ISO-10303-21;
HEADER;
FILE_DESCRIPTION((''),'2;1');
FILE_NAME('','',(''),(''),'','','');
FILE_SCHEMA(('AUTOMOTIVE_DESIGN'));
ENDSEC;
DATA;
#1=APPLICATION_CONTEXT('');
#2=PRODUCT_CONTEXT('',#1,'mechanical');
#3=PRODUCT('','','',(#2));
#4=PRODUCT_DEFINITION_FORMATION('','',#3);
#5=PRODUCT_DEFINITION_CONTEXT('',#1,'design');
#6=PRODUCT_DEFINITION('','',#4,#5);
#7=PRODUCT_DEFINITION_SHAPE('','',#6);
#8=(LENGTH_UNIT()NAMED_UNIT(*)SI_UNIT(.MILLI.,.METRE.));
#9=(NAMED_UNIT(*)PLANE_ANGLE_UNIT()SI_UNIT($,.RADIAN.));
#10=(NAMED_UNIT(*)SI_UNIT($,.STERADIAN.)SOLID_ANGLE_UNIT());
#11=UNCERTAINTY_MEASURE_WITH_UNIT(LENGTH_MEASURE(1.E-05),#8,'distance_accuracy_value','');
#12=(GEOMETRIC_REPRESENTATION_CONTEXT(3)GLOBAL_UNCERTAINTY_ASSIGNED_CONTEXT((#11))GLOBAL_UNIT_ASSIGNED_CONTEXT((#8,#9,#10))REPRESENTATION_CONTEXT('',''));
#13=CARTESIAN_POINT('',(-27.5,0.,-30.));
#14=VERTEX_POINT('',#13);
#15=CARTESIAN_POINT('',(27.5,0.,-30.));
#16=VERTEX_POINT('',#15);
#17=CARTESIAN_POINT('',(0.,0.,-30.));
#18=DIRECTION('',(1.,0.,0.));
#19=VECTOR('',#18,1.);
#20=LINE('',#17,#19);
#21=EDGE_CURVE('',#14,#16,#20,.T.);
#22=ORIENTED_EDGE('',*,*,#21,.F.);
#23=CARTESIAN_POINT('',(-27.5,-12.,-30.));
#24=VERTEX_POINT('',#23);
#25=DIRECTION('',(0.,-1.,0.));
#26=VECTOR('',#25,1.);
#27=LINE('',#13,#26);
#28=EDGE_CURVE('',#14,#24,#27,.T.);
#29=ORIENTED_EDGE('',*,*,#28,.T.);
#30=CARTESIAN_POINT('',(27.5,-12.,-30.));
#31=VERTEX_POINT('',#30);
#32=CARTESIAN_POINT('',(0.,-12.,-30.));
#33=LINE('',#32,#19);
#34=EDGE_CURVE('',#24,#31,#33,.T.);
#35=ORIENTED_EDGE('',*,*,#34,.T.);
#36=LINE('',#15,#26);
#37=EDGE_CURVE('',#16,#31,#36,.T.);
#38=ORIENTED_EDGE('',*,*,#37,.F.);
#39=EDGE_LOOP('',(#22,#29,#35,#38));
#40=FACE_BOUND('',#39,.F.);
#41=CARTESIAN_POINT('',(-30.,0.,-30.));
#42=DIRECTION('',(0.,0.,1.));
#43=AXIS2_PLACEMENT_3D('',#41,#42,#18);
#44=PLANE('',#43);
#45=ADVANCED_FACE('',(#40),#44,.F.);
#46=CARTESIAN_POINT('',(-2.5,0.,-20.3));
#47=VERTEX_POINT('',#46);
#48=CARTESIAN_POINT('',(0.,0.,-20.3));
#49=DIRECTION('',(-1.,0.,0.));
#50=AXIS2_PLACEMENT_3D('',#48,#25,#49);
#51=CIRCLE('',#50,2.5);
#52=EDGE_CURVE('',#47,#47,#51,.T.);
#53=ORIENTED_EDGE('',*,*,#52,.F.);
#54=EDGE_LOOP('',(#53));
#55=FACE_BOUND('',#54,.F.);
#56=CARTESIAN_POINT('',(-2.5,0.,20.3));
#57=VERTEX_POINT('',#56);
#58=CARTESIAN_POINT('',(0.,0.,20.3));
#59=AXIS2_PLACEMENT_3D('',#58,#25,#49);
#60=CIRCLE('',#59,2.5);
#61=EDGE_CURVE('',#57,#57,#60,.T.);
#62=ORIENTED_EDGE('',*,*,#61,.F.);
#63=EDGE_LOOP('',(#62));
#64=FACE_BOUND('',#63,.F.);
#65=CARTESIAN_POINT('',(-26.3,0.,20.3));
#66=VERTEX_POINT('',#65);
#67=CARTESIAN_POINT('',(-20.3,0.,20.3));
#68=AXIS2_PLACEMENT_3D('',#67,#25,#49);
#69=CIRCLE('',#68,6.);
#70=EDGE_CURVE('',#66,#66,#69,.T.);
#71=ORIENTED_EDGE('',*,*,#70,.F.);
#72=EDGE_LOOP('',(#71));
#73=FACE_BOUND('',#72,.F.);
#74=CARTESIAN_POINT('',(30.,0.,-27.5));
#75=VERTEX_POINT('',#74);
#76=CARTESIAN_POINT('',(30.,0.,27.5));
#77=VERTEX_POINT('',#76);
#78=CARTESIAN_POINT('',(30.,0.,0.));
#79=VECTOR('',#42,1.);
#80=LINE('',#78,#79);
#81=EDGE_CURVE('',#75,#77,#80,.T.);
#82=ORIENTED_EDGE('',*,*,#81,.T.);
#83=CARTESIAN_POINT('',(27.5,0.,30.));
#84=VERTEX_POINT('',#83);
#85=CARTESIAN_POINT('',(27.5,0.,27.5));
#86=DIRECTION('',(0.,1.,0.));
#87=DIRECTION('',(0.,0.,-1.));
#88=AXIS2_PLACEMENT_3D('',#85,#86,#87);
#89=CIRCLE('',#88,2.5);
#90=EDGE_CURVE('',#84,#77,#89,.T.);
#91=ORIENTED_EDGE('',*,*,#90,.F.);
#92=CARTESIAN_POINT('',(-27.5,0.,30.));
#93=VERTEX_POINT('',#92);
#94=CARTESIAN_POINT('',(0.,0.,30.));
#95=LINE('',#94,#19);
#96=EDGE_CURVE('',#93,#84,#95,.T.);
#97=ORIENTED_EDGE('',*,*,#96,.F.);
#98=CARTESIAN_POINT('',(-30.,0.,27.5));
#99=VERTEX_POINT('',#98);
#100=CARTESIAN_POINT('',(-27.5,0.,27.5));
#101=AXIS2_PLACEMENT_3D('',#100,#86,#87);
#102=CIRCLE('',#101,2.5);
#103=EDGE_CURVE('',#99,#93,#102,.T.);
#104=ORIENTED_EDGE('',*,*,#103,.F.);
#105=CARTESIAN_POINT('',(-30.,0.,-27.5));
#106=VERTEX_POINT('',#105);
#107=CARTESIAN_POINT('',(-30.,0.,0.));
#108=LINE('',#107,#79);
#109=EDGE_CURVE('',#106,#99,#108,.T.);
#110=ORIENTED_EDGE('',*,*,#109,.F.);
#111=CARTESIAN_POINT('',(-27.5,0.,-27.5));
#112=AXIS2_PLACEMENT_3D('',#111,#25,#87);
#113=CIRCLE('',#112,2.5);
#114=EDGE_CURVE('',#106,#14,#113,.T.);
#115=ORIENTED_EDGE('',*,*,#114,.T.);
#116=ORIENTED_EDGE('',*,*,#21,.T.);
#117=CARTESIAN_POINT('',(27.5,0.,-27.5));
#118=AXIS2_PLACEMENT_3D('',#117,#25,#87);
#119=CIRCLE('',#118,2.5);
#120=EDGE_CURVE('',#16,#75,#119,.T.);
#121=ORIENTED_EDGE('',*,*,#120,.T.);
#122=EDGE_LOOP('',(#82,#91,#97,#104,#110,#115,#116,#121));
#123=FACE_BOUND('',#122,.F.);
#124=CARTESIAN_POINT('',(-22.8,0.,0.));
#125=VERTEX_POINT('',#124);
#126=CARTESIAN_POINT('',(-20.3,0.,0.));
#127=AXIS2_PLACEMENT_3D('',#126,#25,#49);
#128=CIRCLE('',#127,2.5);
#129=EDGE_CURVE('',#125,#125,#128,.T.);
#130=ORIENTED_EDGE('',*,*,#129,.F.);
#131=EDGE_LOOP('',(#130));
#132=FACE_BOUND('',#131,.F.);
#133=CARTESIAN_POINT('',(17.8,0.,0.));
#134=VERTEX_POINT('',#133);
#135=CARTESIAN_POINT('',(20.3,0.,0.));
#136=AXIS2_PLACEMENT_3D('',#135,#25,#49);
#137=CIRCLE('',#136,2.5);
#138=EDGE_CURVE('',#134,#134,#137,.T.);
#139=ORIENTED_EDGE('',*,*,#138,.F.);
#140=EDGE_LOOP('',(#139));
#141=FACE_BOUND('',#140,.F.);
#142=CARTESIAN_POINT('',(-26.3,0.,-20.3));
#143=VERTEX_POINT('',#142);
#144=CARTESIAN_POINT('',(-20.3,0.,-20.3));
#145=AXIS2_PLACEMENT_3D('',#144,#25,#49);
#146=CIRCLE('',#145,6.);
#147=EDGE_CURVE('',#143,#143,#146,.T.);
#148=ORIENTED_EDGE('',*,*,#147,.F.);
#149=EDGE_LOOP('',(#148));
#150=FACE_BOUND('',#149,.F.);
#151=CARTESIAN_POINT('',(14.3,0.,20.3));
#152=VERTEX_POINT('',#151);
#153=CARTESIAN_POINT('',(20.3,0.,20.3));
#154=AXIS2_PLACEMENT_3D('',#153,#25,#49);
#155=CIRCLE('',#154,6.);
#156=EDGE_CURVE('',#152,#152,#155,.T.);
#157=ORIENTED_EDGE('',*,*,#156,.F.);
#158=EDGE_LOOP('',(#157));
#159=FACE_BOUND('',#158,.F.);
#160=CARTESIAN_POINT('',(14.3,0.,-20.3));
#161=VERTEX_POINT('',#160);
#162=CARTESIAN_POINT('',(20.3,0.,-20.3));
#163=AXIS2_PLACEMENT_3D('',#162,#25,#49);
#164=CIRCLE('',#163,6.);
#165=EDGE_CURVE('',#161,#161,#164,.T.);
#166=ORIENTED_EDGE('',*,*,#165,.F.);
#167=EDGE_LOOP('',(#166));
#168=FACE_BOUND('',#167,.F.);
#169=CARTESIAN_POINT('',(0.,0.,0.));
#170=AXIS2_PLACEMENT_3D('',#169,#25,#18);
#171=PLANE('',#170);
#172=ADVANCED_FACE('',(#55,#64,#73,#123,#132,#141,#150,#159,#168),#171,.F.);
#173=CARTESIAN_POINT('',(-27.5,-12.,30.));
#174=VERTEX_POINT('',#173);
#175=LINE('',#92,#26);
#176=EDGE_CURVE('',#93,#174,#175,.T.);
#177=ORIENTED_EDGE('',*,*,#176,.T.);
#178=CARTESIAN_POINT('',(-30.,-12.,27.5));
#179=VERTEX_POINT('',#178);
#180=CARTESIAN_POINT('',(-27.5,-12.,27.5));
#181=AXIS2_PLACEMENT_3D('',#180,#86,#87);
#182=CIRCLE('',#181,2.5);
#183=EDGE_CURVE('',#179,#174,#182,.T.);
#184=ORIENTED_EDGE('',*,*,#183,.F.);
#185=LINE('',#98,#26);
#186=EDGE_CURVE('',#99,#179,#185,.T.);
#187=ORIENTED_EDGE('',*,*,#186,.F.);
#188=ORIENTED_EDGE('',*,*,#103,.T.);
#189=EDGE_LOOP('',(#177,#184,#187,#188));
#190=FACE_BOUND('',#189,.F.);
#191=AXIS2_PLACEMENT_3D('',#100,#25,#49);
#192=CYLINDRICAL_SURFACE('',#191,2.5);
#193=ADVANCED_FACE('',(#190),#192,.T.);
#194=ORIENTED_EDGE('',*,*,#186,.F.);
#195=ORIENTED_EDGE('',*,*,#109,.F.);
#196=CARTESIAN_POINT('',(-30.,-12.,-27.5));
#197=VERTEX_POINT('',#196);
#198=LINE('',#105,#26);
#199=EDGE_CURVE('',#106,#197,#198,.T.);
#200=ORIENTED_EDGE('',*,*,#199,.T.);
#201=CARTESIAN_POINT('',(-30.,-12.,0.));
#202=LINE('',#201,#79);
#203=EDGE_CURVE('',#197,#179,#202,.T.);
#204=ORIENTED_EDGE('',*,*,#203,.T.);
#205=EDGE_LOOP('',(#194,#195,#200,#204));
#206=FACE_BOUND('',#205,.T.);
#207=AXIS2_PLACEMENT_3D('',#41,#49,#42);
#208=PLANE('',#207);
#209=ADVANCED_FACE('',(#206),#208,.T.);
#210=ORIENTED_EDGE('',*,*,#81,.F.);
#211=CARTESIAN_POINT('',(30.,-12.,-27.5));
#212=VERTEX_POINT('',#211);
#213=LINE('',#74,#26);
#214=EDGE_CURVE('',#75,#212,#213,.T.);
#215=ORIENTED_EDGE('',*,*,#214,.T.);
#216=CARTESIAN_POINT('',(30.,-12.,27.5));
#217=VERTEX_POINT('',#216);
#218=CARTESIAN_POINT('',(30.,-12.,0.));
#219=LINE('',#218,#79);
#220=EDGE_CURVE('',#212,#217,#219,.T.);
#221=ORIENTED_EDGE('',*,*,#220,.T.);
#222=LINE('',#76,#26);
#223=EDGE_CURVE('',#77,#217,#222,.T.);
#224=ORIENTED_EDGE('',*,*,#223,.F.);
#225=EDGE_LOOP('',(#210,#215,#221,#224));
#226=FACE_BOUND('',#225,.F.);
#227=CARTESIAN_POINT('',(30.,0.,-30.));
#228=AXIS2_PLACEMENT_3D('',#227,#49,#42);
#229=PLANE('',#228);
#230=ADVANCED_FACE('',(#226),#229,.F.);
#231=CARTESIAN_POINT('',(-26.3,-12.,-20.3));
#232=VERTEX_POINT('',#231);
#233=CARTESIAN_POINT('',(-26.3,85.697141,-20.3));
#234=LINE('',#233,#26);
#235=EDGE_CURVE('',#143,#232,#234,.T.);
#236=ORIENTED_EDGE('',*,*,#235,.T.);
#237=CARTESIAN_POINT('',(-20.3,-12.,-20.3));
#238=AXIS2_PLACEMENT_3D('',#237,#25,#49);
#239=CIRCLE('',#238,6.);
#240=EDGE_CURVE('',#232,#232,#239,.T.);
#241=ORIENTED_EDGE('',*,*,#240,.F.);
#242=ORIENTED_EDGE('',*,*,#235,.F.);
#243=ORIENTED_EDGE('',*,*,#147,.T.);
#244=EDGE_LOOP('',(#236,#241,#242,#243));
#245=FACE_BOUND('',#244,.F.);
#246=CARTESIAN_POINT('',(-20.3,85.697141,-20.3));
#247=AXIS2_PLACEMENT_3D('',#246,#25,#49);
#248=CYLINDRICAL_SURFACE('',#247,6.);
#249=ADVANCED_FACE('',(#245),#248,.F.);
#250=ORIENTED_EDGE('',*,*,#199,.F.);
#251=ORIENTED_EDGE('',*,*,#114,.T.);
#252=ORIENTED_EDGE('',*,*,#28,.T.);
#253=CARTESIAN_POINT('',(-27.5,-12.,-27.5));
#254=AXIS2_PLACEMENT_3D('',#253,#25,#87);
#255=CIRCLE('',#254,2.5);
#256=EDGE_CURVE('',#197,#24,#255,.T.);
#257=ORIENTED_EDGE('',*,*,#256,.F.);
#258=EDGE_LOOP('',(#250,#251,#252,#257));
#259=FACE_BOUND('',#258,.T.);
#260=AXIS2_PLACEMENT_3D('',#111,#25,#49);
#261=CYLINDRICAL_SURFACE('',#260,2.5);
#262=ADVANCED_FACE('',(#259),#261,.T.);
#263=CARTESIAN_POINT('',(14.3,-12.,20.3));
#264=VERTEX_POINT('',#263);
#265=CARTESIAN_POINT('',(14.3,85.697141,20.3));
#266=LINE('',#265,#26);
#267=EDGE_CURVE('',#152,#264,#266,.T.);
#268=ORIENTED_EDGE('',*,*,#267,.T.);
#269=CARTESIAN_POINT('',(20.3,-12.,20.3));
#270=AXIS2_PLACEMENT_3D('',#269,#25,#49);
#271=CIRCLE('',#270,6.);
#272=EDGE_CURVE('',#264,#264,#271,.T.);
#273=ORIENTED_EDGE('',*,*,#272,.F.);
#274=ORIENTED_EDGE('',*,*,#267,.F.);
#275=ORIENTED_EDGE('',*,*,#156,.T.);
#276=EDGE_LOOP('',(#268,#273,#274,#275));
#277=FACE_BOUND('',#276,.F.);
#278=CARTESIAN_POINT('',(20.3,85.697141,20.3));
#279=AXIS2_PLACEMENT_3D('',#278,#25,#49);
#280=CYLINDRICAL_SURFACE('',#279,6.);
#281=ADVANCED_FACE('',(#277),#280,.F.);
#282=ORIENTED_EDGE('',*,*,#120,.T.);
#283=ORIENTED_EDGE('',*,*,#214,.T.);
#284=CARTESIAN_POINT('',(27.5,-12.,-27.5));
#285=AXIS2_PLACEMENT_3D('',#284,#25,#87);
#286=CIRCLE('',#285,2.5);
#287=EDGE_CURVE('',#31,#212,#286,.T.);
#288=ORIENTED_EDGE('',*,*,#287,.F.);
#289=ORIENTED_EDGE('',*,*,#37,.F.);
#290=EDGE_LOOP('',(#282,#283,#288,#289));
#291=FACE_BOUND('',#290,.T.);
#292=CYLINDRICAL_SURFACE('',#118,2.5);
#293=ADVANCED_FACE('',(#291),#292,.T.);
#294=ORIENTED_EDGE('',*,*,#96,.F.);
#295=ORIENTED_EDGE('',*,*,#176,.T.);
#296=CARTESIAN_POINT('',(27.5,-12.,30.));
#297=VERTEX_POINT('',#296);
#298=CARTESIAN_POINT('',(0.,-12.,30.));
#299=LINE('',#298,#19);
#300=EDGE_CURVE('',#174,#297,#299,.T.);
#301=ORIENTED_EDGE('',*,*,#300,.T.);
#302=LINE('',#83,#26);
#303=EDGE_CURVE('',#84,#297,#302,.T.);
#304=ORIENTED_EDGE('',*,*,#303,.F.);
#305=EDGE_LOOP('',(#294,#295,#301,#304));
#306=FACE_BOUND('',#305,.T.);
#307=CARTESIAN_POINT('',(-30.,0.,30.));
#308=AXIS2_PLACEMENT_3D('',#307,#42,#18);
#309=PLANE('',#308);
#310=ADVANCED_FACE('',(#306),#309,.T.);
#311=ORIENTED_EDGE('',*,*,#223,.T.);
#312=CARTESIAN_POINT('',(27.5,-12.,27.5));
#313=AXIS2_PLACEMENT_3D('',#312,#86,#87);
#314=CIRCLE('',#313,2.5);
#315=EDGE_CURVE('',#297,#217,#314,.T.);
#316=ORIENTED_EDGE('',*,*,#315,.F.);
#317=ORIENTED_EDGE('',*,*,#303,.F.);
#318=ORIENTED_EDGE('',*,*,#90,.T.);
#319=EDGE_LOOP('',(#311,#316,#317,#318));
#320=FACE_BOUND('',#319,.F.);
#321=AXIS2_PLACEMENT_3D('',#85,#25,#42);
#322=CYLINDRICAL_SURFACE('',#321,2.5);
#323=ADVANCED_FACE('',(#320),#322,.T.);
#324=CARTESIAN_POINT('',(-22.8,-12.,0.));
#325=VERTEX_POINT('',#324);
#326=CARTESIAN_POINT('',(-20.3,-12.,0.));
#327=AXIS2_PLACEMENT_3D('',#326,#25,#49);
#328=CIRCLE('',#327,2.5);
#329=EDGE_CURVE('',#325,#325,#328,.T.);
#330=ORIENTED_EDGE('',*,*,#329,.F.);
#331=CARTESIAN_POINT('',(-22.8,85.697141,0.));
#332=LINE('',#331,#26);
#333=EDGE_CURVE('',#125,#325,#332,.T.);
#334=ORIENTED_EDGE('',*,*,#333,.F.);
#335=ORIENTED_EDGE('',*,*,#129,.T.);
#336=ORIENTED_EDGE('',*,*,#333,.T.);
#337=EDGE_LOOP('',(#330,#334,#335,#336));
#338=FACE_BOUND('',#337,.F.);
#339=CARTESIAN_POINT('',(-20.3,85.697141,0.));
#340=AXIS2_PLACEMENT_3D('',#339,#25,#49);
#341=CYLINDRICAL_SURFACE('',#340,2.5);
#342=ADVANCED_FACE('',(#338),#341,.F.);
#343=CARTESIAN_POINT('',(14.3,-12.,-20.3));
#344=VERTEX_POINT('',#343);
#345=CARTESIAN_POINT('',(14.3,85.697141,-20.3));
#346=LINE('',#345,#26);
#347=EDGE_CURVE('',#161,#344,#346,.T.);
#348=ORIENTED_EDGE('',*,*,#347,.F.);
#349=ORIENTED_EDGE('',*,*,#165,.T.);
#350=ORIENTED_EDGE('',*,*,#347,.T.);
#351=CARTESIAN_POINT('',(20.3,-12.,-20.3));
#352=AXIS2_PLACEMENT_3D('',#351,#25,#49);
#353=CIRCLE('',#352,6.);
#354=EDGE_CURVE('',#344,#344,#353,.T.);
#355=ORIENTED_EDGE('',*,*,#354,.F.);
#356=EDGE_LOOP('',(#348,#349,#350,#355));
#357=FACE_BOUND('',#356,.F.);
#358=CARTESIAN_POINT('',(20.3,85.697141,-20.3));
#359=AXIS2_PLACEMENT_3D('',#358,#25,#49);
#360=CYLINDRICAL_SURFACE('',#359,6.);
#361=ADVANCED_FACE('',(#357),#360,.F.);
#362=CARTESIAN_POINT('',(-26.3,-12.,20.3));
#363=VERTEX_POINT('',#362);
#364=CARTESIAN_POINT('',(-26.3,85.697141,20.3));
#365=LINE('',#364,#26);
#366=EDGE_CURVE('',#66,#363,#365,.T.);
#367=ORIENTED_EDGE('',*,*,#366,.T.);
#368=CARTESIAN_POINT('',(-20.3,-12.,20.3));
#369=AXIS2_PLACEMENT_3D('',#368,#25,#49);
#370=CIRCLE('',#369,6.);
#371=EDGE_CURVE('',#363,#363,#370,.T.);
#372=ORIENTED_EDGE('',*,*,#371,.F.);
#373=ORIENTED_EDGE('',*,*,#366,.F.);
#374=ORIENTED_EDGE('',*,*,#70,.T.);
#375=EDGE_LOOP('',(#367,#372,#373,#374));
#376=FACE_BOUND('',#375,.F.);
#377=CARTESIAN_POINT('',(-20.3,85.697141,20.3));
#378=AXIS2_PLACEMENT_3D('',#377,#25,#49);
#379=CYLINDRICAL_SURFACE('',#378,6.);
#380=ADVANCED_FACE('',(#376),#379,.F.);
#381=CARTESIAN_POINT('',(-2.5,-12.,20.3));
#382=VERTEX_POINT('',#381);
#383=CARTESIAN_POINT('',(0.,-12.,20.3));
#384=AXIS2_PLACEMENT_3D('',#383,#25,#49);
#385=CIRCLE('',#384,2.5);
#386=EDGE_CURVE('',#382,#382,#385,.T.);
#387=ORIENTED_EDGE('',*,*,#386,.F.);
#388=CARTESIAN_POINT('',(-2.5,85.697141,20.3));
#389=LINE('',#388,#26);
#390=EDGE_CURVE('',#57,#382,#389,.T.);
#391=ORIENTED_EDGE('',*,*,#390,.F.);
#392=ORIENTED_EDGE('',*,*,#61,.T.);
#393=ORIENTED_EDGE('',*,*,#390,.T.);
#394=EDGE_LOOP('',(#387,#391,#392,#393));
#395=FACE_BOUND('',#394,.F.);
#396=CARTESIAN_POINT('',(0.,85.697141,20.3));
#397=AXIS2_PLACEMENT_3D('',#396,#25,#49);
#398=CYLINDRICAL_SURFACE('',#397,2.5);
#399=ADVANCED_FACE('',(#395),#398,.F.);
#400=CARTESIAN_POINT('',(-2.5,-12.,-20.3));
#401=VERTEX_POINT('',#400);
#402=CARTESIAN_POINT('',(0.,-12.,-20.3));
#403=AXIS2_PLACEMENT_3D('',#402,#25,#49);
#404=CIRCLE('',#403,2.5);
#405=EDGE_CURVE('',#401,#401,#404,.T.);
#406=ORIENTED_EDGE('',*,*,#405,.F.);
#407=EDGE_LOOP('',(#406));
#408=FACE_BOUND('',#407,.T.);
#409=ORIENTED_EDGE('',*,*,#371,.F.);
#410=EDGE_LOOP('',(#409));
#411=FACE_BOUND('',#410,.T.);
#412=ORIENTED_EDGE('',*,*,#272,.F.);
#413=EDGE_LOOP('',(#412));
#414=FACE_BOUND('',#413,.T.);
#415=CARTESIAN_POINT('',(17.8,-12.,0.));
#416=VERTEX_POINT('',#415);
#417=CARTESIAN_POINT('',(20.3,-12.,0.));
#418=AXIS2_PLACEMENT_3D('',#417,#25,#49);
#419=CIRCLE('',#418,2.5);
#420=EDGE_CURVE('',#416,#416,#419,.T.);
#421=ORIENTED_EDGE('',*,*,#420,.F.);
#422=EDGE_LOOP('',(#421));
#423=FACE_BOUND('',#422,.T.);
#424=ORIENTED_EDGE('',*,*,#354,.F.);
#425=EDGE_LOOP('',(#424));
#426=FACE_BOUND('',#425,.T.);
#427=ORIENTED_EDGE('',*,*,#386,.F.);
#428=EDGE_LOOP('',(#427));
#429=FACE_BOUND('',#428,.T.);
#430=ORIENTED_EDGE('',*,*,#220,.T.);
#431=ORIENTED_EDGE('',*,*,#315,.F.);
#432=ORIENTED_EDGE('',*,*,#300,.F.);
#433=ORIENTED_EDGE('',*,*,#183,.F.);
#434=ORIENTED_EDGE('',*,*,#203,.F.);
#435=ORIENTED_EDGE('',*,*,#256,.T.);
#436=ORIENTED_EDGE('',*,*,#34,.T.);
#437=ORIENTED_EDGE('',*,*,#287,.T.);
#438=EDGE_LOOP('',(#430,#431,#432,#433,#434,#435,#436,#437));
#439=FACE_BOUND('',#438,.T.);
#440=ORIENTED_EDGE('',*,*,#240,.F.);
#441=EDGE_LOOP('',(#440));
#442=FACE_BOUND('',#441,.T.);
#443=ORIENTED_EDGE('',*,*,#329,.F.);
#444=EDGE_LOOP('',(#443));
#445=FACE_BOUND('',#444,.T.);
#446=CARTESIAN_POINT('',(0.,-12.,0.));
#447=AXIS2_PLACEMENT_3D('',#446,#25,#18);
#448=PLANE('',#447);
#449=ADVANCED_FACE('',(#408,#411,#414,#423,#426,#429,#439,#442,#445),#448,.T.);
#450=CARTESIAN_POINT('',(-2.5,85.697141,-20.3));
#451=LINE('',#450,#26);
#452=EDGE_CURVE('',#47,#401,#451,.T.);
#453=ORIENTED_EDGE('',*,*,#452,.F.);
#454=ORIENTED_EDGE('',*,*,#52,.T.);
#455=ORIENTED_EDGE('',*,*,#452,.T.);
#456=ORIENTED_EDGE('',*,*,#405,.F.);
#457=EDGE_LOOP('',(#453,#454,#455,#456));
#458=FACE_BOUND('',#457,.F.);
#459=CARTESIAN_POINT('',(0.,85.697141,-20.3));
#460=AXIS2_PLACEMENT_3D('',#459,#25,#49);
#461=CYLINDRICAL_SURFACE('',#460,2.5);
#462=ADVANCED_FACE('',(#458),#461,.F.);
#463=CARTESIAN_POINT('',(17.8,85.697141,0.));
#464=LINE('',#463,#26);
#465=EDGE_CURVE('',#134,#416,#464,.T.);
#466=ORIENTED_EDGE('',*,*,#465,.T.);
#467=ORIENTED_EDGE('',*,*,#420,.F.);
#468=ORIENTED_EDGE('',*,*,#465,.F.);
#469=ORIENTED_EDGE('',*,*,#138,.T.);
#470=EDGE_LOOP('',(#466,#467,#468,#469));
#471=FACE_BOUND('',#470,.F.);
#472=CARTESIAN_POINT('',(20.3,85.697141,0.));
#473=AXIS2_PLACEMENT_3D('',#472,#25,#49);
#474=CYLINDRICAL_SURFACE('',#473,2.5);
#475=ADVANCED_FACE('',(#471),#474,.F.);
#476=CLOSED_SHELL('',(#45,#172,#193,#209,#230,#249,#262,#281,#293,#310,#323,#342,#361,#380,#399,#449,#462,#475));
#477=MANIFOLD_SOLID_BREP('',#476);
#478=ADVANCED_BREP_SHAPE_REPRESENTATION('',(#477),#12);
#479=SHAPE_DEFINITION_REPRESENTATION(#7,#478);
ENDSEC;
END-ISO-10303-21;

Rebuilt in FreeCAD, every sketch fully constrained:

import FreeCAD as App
import Part
import Sketcher
from FreeCAD import Vector
Q = App.Units.Quantity


def edges_at(feature, points):
    """Names of the edges that pass closest to the given points."""
    edges = feature.Shape.Edges
    near = lambda p: min(range(len(edges)), key=lambda i: edges[i].distToShape(Part.Vertex(*p))[0])
    return sorted({f"Edge{near(p) + 1}" for p in points})


def add_polygon(sketch, points):
    """Adds a closed chain of lines whose ends are joined by coincident constraints."""
    first, n = sketch.GeometryCount, len(points)
    for a, b in zip(points, points[1:] + points[:1]):
        sketch.addGeometry(Part.LineSegment(App.Vector(*a, 0), App.Vector(*b, 0)), False)
    for i in range(n):
        sketch.addConstraint(Sketcher.Constraint("Coincident", first + i, 2, first + (i + 1) % n, 1))

doc = App.newDocument("Part")
body = doc.addObject("PartDesign::Body", "Body")

# Sketch on XZ plane
sketch1 = doc.addObject("Sketcher::SketchObject", "Sketch")
body.addObject(sketch1)
sketch1.AttachmentSupport = (doc.XZ_Plane, [""])
sketch1.MapMode = "FlatFace"
add_polygon(sketch1, [(-30, 30), (-30, -30), (30, -30), (30, 30)])  # lines 0-3
sketch1.addConstraint([
    Sketcher.Constraint("Vertical", 0),
    Sketcher.Constraint("Horizontal", 1),
    Sketcher.Constraint("Vertical", 2),
    Sketcher.Constraint("Horizontal", 3),
    Sketcher.Constraint("Symmetric", 0, 2, 2, 2, -1, 1),
    Sketcher.Constraint("Equal", 3, 0),
    Sketcher.Constraint("DistanceX", 1, 1, 1, 2, Q("60 mm")),
])
pad1 = doc.addObject("PartDesign::Pad", "Pad")
body.addObject(pad1)
pad1.Profile = sketch1
pad1.Length = 12

# Sketch on XZ plane
sketch2 = doc.addObject("Sketcher::SketchObject", "Sketch001")
body.addObject(sketch2)
sketch2.AttachmentSupport = (doc.XZ_Plane, [""])
sketch2.MapMode = "FlatFace"
sketch2.addGeometry([
    Part.Circle(Vector(0, -20.3, 0), Vector(0, 0, 1), 2.5),
    Part.Circle(Vector(0, 20.3, 0), Vector(0, 0, 1), 2.5),
    Part.Circle(Vector(-20.3, 0, 0), Vector(0, 0, 1), 2.5),
    Part.Circle(Vector(20.3, 0, 0), Vector(0, 0, 1), 2.5),
], False)
sketch2.addConstraint([
    Sketcher.Constraint("Equal", 0, 1),
    Sketcher.Constraint("Equal", 1, 2),
    Sketcher.Constraint("Equal", 2, 3),
    Sketcher.Constraint("Symmetric", 0, 3, 1, 3, -1, 1),
    Sketcher.Constraint("Symmetric", 2, 3, 3, 3, -1, 1),
    Sketcher.Constraint("PointOnObject", 0, 3, -2),
    Sketcher.Constraint("PointOnObject", 2, 3, -1),
    Sketcher.Constraint("Diameter", 0, Q("5 mm")),
    Sketcher.Constraint("DistanceY", 0, 3, -1, 1, Q("20.3 mm")),
    Sketcher.Constraint("DistanceX", 2, 3, -1, 1, Q("20.3 mm")),
])
doc.recompute()
hole = doc.addObject("PartDesign::Hole", "Hole")
body.addObject(hole)
hole.Profile = sketch2
hole.ThreadType = "None"
hole.Diameter = 5
hole.DepthType = "ThroughAll"
hole.Reversed = True

# Sketch on XZ plane
sketch3 = doc.addObject("Sketcher::SketchObject", "Sketch002")
body.addObject(sketch3)
sketch3.AttachmentSupport = (doc.XZ_Plane, [""])
sketch3.MapMode = "FlatFace"
sketch3.addGeometry([
    Part.Circle(Vector(-20.3, -20.3, 0), Vector(0, 0, 1), 6),
    Part.Circle(Vector(20.3, -20.3, 0), Vector(0, 0, 1), 6),
    Part.Circle(Vector(20.3, 20.3, 0), Vector(0, 0, 1), 6),
    Part.Circle(Vector(-20.3, 20.3, 0), Vector(0, 0, 1), 6),
], False)
sketch3.addConstraint([
    Sketcher.Constraint("Equal", 0, 1),
    Sketcher.Constraint("Equal", 1, 2),
    Sketcher.Constraint("Equal", 2, 3),
    Sketcher.Constraint("Symmetric", 0, 3, 2, 3, -1, 1),
    Sketcher.Constraint("Symmetric", 1, 3, 3, 3, -1, 1),
    Sketcher.Constraint("Symmetric", 0, 3, 1, 3, -2),
    Sketcher.Constraint("Diameter", 0, Q("12 mm")),
    Sketcher.Constraint("DistanceX", 0, 3, -1, 1, Q("20.3 mm")),
    Sketcher.Constraint("DistanceY", 0, 3, -1, 1, Q("20.3 mm")),
])
doc.recompute()
hole2 = doc.addObject("PartDesign::Hole", "Hole001")
body.addObject(hole2)
hole2.Profile = sketch3
hole2.ThreadType = "None"
hole2.Diameter = 12
hole2.DepthType = "ThroughAll"
hole2.Reversed = True
doc.recompute()

fillet = doc.addObject("PartDesign::Fillet", "Fillet")
body.addObject(fillet)
fillet.Base = (hole2, edges_at(hole2, [
    (30, -6, 30),
    (30, -6, -30),
    (-30, -6, -30),
    (-30, -6, 30),
]))
fillet.Radius = 2.5

doc.recompute()
